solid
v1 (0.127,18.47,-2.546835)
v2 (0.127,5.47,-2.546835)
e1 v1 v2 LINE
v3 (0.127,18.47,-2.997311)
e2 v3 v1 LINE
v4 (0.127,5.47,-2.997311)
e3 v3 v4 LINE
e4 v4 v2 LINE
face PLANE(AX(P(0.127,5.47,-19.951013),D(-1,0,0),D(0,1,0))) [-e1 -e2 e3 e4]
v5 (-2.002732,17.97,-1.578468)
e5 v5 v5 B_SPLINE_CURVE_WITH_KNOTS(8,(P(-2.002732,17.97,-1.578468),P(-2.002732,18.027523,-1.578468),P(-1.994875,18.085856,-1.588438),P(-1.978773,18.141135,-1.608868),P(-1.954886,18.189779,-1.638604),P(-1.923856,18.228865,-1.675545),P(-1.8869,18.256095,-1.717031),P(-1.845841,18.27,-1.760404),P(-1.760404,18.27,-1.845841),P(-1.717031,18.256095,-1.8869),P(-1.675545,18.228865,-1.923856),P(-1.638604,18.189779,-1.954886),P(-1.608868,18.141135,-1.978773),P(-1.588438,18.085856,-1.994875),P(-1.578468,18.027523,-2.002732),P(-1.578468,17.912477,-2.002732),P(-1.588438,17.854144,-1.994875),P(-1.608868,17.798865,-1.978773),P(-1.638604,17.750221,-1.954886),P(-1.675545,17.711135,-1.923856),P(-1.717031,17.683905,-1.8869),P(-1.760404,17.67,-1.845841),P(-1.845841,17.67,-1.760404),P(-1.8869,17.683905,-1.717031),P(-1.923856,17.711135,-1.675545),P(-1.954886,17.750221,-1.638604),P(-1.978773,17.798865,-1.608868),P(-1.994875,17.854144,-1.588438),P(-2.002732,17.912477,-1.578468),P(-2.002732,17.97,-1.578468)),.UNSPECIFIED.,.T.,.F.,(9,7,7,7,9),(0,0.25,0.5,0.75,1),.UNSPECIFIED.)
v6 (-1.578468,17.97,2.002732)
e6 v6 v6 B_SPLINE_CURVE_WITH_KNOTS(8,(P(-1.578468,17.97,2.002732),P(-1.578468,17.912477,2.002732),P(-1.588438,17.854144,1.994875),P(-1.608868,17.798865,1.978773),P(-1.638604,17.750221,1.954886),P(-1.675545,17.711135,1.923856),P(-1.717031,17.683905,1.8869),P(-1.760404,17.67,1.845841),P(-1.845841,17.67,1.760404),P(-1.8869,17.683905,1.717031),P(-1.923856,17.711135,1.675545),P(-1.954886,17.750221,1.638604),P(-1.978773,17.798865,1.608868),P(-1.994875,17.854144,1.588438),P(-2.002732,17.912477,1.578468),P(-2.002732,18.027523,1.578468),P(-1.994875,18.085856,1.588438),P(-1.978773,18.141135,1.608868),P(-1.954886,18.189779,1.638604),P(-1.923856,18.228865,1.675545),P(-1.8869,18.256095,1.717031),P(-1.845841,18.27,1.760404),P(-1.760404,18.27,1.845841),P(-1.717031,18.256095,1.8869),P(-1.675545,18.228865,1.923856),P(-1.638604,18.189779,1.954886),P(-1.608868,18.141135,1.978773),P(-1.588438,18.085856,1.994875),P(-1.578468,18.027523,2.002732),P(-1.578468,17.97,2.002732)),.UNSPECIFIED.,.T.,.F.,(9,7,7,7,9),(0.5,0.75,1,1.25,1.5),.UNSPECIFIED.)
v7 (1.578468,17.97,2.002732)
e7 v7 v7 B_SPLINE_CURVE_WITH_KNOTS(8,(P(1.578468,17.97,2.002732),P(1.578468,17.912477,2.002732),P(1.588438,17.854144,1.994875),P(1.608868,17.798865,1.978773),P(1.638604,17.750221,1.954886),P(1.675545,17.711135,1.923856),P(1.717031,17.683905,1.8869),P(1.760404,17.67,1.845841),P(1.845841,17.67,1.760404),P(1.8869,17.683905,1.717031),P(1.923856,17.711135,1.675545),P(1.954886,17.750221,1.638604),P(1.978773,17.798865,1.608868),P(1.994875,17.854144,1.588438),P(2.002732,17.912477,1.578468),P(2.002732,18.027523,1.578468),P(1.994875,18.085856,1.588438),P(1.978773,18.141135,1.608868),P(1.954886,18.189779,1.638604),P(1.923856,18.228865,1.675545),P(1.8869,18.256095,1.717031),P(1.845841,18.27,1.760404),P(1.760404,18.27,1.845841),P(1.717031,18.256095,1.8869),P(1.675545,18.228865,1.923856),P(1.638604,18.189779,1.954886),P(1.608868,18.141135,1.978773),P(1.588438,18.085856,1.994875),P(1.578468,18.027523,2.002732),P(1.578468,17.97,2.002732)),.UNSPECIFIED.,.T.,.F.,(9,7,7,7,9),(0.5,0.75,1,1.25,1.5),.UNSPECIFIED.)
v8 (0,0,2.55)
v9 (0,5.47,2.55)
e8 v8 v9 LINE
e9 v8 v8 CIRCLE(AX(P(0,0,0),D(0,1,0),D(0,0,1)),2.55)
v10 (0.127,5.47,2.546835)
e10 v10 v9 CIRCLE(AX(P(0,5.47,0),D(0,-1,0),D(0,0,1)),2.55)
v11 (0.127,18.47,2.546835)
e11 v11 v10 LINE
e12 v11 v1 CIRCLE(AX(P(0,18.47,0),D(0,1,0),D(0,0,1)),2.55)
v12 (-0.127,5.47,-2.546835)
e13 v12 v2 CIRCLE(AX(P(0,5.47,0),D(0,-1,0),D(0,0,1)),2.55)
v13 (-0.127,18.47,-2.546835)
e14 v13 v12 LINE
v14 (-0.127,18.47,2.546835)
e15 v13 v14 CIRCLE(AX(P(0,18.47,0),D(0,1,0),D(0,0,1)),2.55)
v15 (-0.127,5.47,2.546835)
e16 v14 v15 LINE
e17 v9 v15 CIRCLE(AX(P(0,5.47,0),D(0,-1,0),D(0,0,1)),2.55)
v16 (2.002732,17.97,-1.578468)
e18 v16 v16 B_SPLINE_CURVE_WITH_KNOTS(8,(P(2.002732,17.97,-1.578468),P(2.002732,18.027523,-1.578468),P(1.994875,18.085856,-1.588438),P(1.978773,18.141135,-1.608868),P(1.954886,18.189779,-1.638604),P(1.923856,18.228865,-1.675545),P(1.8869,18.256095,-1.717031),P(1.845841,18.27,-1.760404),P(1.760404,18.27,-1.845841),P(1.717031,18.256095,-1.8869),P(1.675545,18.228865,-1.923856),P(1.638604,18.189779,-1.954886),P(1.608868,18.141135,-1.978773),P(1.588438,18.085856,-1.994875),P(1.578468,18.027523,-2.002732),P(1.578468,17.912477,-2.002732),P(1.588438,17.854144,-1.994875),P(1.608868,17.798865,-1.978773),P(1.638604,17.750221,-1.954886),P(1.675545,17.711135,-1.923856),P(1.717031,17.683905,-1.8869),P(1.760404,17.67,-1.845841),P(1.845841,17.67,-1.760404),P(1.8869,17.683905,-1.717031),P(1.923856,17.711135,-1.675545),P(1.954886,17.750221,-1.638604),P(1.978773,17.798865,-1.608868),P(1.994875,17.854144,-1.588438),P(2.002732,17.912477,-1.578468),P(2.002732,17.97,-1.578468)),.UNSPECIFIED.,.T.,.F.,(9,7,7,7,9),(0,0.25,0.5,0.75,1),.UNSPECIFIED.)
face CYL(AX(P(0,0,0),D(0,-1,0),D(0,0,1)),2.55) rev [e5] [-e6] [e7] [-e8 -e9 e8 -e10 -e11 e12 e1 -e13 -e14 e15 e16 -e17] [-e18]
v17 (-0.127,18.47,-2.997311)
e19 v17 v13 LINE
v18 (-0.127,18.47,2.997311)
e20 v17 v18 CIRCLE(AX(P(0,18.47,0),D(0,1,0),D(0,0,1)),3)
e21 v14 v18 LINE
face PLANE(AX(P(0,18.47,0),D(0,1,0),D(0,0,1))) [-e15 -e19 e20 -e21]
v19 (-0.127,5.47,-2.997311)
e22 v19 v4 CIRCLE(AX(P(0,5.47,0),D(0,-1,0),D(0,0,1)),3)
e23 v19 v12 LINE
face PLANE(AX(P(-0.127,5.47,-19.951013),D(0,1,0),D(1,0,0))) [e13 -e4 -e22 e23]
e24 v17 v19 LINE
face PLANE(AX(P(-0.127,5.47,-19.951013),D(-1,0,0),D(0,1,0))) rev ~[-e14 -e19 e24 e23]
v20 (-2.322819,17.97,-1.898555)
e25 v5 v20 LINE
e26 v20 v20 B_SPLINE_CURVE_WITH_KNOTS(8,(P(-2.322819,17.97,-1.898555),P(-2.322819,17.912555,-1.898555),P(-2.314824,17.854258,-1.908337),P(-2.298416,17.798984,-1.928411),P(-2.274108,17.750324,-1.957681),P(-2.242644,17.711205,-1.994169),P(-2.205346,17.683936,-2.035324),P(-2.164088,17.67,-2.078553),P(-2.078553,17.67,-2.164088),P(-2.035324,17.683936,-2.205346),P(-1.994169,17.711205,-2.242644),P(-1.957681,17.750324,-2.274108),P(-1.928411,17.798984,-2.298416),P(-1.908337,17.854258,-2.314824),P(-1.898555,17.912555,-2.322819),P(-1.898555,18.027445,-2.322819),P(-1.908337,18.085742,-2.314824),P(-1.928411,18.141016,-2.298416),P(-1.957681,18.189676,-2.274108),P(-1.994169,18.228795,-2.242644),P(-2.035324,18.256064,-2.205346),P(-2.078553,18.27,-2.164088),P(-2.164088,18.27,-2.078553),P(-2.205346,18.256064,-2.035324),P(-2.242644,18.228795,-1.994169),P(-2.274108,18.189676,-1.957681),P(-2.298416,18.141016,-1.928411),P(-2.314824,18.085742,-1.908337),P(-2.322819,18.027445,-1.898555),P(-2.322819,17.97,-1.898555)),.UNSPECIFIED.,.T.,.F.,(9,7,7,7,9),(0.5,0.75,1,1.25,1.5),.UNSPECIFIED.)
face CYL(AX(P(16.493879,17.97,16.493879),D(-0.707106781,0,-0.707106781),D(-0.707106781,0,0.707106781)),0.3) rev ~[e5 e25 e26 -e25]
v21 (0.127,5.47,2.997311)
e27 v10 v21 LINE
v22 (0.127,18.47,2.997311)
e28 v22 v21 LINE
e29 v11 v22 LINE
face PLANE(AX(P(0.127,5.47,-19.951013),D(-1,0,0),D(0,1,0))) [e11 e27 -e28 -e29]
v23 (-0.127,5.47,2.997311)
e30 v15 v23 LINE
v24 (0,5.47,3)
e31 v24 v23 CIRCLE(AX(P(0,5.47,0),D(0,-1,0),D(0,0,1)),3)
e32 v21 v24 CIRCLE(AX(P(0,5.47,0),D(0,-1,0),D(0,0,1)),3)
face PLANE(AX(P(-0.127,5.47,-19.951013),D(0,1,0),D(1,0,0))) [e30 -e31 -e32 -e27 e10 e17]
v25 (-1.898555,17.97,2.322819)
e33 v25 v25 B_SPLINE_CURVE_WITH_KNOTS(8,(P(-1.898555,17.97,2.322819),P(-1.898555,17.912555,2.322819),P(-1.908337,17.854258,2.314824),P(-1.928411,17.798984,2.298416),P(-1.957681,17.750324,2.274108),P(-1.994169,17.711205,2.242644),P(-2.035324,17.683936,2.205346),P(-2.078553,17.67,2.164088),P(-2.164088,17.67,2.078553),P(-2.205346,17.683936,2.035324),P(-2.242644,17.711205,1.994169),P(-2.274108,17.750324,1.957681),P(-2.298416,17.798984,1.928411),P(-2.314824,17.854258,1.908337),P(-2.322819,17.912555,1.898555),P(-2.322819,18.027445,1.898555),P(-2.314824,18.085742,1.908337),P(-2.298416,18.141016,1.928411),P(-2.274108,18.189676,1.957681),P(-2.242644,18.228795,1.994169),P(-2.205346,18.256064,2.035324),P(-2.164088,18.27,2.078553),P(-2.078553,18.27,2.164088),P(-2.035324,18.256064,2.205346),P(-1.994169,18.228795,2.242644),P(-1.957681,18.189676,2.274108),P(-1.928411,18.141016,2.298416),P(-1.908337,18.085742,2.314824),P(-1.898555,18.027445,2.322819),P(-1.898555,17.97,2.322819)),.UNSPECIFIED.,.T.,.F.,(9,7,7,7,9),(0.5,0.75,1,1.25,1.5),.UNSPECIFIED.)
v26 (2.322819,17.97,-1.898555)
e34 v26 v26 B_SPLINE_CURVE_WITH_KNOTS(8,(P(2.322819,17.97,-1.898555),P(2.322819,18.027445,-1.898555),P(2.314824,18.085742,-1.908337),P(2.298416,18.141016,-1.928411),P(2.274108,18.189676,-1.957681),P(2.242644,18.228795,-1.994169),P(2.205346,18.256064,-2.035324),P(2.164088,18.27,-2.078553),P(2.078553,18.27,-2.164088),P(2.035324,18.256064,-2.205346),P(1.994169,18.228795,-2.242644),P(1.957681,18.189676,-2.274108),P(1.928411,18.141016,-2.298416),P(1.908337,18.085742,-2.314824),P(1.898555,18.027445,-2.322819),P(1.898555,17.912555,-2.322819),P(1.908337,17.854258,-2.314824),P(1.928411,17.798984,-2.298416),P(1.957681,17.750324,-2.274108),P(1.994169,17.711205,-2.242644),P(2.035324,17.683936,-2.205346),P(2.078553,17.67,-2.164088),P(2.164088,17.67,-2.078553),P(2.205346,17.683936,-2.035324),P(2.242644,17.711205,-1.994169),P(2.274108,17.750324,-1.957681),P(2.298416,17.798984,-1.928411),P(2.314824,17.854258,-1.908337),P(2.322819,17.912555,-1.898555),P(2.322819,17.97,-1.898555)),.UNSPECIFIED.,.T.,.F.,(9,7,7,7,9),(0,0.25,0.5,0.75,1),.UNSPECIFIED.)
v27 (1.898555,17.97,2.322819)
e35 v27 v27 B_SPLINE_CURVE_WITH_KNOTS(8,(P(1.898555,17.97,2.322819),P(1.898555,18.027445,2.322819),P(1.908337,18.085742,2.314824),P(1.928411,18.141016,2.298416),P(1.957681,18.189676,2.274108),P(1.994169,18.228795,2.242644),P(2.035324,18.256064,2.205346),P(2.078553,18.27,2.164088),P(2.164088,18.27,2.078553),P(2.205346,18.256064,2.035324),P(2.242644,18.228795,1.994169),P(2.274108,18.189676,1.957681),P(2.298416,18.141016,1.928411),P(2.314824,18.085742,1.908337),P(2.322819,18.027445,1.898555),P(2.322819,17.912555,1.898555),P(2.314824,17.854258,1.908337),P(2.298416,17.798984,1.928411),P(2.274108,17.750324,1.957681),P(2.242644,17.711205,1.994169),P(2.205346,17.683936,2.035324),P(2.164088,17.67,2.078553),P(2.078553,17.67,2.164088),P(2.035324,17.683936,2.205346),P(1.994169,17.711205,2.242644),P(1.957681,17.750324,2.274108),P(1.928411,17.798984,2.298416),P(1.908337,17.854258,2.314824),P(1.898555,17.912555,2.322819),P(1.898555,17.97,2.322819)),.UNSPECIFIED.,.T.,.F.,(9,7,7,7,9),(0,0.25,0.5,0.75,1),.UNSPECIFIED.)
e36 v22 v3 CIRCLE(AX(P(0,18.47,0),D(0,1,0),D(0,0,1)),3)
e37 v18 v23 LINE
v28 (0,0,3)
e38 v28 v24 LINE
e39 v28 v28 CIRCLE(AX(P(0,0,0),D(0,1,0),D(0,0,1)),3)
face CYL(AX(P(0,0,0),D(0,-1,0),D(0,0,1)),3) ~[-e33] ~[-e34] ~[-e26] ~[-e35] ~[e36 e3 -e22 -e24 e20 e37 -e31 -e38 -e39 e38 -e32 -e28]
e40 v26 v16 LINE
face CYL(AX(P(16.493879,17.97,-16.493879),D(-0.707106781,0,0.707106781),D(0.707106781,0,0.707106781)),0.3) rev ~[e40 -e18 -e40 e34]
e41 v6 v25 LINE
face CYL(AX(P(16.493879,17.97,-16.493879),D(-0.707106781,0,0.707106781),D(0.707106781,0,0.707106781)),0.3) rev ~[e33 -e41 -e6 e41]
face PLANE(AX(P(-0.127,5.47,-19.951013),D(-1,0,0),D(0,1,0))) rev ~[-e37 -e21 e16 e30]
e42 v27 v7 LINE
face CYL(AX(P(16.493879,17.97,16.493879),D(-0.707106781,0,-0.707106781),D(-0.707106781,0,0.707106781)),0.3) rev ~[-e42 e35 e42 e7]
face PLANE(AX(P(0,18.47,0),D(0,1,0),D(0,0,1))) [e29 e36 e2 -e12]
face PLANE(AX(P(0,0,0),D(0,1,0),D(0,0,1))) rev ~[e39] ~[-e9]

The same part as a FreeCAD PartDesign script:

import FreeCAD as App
import Part
import Sketcher
from FreeCAD import Vector


def add_polygon(sketch, points):
    """Adds a closed chain of lines whose ends are joined by coincident constraints."""
    first, n = sketch.GeometryCount, len(points)
    for a, b in zip(points, points[1:] + points[:1]):
        sketch.addGeometry(Part.LineSegment(App.Vector(*a, 0), App.Vector(*b, 0)), False)
    for i in range(n):
        sketch.addConstraint(Sketcher.Constraint("Coincident", first + i, 2, first + (i + 1) % n, 1))

doc = App.newDocument("Part")
body = doc.addObject("PartDesign::Body", "Body")

# Sketch on XZ plane
sketch1 = body.newObject("Sketcher::SketchObject", "Sketch")
sketch1.AttachmentSupport = (doc.getObject("XZ_Plane"), [""])
sketch1.MapMode = "FlatFace"
sketch1.addGeometry([
    Part.Circle(Vector(0, 0, 0), Vector(0, 0, 1), 3),
    Part.Circle(Vector(0, 0, 0), Vector(0, 0, 1), 2.5),
], False)
sketch1.addConstraint([
    Sketcher.Constraint("Coincident", 0, 3, -1, 1),
    Sketcher.Constraint("Coincident", 1, 3, -1, 1),
    Sketcher.Constraint("Diameter", 0, 6.0),
    Sketcher.Constraint("Diameter", 1, 5.1),
])
pad1 = body.newObject("PartDesign::Pad", "Pad")
pad1.Profile = sketch1
pad1.Length = 18.47
pad1.Reversed = True

# Sketch on XY plane
sketch2 = body.newObject("Sketcher::SketchObject", "Sketch001")
sketch2.AttachmentSupport = (doc.getObject("XY_Plane"), [""])
sketch2.MapMode = "FlatFace"
add_polygon(sketch2, [(-0.13, 18.47), (-0.13, 5.47), (0.13, 5.47), (0.13, 18.47)])  # lines 0-3
sketch2.addConstraint([
    Sketcher.Constraint("Vertical", 0),
    Sketcher.Constraint("Horizontal", 1),
    Sketcher.Constraint("Vertical", 2),
    Sketcher.Constraint("Horizontal", 3),
    Sketcher.Constraint("DistanceY", 0, 2, 0, 1, 13.0),
    Sketcher.Constraint("DistanceX", 1, 1, 1, 2, 0.254),
    Sketcher.Constraint("DistanceY", -1, 1, 0, 2, 5.47),
    Sketcher.Constraint("DistanceX", 0, 2, -1, 1, 0.127),
])
pocket1 = body.newObject("PartDesign::Pocket", "Pocket")
pocket1.Profile = sketch2
pocket1.Type = "ThroughAll"
pocket1.Midplane = True

# Sketch on an angled plane
sketch3 = body.newObject("Sketcher::SketchObject", "Sketch002")
sketch3.Placement = App.Placement(Vector(2.12132, 0, 2.12132), App.Rotation(Vector(0.707106781, 0, -0.707106781), Vector(0, 0.999999999, 0), Vector(0.707106781, 0, 0.707106781), "ZXY"))
sketch3.addGeometry(Part.Circle(Vector(0, 17.97, 0), Vector(0, 0, 1), 0.3), False)
sketch3.addConstraint([
    Sketcher.Constraint("PointOnObject", 0, 3, -2),
    Sketcher.Constraint("Diameter", 0, 0.6),
    Sketcher.Constraint("DistanceY", -1, 1, 0, 3, 17.97),
])
doc.recompute()
hole = body.newObject("PartDesign::Hole", "Hole")
hole.Profile = sketch3
hole.ThreadType = "None"
hole.Diameter = 0.6
hole.DepthType = "ThroughAll"

# Sketch on an angled plane
sketch4 = body.newObject("Sketcher::SketchObject", "Sketch003")
sketch4.Placement = App.Placement(Vector(2.12132, 0, -2.12132), App.Rotation(Vector(-0.707106781, 0, -0.707106781), Vector(0, 0.999999999, 0), Vector(0.707106781, 0, -0.707106781), "ZXY"))
sketch4.addGeometry(Part.Circle(Vector(0, 17.97, 0), Vector(0, 0, 1), 0.3), False)
sketch4.addConstraint([
    Sketcher.Constraint("PointOnObject", 0, 3, -2),
    Sketcher.Constraint("Diameter", 0, 0.6),
    Sketcher.Constraint("DistanceY", -1, 1, 0, 3, 17.97),
])
doc.recompute()
hole2 = body.newObject("PartDesign::Hole", "Hole001")
hole2.Profile = sketch4
hole2.ThreadType = "None"
hole2.Diameter = 0.6
hole2.DepthType = "ThroughAll"

# Sketch on an angled plane
sketch5 = body.newObject("Sketcher::SketchObject", "Sketch004")
sketch5.Placement = App.Placement(Vector(-2.12132, 0, 2.12132), App.Rotation(Vector(0.707106781, 0, 0.707106781), Vector(0, 0.999999999, 0), Vector(-0.707106781, 0, 0.707106781), "ZXY"))
sketch5.addGeometry(Part.Circle(Vector(0, 17.97, 0), Vector(0, 0, 1), 0.3), False)
sketch5.addConstraint([
    Sketcher.Constraint("PointOnObject", 0, 3, -2),
    Sketcher.Constraint("Diameter", 0, 0.6),
    Sketcher.Constraint("DistanceY", -1, 1, 0, 3, 17.97),
])
doc.recompute()
hole3 = body.newObject("PartDesign::Hole", "Hole002")
hole3.Profile = sketch5
hole3.ThreadType = "None"
hole3.Diameter = 0.6
hole3.DepthType = "ThroughAll"

# Sketch on an angled plane
sketch6 = body.newObject("Sketcher::SketchObject", "Sketch005")
sketch6.Placement = App.Placement(Vector(-2.12132, 0, -2.12132), App.Rotation(Vector(-0.707106781, 0, 0.707106781), Vector(0, 0.999999999, 0), Vector(-0.707106781, 0, -0.707106781), "ZXY"))
sketch6.addGeometry(Part.Circle(Vector(0, 17.97, 0), Vector(0, 0, 1), 0.3), False)
sketch6.addConstraint([
    Sketcher.Constraint("PointOnObject", 0, 3, -2),
    Sketcher.Constraint("Diameter", 0, 0.6),
    Sketcher.Constraint("DistanceY", -1, 1, 0, 3, 17.97),
])
doc.recompute()
hole4 = body.newObject("PartDesign::Hole", "Hole003")
hole4.Profile = sketch6
hole4.ThreadType = "None"
hole4.Diameter = 0.6
hole4.DepthType = "ThroughAll"

doc.recompute()
